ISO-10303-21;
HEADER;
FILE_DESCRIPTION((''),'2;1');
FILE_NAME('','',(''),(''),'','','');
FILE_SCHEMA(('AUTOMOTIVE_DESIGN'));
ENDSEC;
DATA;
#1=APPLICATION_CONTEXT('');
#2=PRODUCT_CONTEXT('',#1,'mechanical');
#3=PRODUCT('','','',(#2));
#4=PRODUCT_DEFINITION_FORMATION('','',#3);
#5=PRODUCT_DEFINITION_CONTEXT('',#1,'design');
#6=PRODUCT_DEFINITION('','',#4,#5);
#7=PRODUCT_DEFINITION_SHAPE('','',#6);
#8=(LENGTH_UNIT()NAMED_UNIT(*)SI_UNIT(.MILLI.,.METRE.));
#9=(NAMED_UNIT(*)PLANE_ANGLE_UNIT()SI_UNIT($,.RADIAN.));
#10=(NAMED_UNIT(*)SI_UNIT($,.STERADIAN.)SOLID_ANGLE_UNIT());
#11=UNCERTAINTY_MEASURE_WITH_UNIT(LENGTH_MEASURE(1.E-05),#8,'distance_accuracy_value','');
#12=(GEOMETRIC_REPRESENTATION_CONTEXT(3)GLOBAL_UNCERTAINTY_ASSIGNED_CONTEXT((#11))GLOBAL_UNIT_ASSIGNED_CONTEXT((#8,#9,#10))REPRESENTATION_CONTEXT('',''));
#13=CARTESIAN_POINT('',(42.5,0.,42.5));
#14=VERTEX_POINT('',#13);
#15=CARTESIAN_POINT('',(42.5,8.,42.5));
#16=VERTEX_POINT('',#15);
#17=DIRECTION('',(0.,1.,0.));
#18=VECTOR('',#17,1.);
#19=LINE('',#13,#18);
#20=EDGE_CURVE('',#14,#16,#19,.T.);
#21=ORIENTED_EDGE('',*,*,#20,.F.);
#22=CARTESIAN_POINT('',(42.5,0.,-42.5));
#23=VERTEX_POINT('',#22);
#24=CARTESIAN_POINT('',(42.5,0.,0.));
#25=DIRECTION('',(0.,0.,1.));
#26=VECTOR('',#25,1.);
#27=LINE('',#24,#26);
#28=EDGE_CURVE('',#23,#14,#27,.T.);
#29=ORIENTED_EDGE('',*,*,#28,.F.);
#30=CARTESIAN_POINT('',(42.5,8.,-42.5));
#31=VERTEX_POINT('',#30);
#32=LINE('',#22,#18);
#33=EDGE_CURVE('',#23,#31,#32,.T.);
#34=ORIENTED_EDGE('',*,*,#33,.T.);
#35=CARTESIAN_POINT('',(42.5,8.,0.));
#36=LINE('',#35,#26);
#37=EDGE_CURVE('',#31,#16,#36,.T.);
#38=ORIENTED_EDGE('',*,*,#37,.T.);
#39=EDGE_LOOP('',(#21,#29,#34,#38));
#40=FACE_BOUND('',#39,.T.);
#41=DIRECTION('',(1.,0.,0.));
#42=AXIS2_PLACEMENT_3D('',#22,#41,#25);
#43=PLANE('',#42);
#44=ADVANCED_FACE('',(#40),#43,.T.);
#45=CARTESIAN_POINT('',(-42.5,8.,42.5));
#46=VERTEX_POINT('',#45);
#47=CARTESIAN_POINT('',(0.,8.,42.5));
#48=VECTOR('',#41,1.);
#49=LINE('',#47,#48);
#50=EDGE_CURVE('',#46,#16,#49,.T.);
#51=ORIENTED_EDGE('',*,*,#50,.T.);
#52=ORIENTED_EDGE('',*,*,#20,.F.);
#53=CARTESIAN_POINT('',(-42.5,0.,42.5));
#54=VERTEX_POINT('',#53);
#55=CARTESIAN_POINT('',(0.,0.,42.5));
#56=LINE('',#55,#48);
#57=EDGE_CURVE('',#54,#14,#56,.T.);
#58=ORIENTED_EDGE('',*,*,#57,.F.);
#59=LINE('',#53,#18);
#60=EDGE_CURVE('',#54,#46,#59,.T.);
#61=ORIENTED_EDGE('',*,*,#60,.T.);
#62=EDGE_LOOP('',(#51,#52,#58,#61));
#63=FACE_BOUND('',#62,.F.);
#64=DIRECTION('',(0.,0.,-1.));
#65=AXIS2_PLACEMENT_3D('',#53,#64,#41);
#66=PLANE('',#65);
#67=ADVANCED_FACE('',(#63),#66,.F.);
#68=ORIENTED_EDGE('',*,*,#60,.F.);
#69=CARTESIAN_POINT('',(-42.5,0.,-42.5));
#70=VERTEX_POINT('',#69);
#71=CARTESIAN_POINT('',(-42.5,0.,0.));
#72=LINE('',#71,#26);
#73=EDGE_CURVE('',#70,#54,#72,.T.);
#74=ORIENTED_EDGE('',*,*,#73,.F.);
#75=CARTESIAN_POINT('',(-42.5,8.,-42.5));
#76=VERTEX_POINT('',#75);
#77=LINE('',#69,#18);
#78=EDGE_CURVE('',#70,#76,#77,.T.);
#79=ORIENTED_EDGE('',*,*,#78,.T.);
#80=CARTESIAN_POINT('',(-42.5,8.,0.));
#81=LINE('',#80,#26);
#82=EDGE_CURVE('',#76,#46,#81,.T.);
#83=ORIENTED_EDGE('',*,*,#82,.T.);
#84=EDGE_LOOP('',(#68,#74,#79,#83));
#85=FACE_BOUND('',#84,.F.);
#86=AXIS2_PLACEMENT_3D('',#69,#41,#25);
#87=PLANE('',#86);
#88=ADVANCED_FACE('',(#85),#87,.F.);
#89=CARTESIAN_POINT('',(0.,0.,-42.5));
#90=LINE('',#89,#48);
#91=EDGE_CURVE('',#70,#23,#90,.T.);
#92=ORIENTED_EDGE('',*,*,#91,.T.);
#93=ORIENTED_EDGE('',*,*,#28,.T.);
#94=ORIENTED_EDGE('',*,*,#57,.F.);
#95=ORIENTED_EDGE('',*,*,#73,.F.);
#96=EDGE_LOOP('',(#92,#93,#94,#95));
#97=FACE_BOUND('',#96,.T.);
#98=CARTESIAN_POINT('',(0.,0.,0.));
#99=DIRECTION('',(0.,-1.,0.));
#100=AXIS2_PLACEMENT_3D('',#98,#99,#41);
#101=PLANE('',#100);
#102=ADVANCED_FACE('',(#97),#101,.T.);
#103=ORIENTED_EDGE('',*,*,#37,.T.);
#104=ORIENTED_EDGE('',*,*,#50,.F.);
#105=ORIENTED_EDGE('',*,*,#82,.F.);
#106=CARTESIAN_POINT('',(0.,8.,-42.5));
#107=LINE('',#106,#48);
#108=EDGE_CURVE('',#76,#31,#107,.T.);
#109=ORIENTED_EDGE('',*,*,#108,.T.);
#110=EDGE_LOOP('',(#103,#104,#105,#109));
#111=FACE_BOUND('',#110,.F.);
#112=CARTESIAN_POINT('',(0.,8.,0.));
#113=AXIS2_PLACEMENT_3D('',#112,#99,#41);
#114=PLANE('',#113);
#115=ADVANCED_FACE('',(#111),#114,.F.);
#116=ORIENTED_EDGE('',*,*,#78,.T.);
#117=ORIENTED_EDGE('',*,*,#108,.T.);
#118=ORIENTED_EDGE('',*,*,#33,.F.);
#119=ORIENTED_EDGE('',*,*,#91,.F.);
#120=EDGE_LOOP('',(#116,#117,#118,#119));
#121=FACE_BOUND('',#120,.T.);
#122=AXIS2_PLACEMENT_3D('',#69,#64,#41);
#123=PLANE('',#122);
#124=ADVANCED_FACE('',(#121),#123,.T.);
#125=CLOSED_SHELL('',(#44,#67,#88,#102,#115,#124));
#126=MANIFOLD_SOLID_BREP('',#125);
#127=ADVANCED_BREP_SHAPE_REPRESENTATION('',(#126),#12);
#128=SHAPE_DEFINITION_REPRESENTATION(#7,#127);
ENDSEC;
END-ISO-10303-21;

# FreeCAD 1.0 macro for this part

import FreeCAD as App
import Part
import Sketcher
Q = App.Units.Quantity

doc = App.newDocument("Part")
body = doc.addObject("PartDesign::Body", "Body")

# Sketch on XZ plane
sketch1 = body.newObject("Sketcher::SketchObject", "Sketch")
sketch1.AttachmentSupport = (doc.getObject("XZ_Plane"), [""])
sketch1.MapMode = "FlatFace"
sketch1.addGeometry(Part.LineSegment(App.Vector(-42, 42, 0), App.Vector(-42, -42, 0)), False)
sketch1.addGeometry(Part.LineSegment(App.Vector(-42, -42, 0), App.Vector(42, -42, 0)), False)
sketch1.addGeometry(Part.LineSegment(App.Vector(42, -42, 0), App.Vector(42, 42, 0)), False)
sketch1.addGeometry(Part.LineSegment(App.Vector(42, 42, 0), App.Vector(-42, 42, 0)), False)
sketch1.addConstraint(Sketcher.Constraint("Coincident", 0, 2, 1, 1))
sketch1.addConstraint(Sketcher.Constraint("Coincident", 1, 2, 2, 1))
sketch1.addConstraint(Sketcher.Constraint("Coincident", 2, 2, 3, 1))
sketch1.addConstraint(Sketcher.Constraint("Coincident", 3, 2, 0, 1))
sketch1.addConstraint(Sketcher.Constraint("Vertical", 0))
sketch1.addConstraint(Sketcher.Constraint("Horizontal", 1))
sketch1.addConstraint(Sketcher.Constraint("Vertical", 2))
sketch1.addConstraint(Sketcher.Constraint("Horizontal", 3))
sketch1.addConstraint(Sketcher.Constraint("Symmetric", 0, 2, 2, 2, -1, 1))
sketch1.addConstraint(Sketcher.Constraint("Equal", 3, 0))
sketch1.addConstraint(Sketcher.Constraint("DistanceX", 1, 1, 1, 2, Q("85 mm")))
pad1 = body.newObject("PartDesign::Pad", "Pad")
pad1.Profile = sketch1
pad1.Length = 8
pad1.Reversed = True

doc.recompute()
